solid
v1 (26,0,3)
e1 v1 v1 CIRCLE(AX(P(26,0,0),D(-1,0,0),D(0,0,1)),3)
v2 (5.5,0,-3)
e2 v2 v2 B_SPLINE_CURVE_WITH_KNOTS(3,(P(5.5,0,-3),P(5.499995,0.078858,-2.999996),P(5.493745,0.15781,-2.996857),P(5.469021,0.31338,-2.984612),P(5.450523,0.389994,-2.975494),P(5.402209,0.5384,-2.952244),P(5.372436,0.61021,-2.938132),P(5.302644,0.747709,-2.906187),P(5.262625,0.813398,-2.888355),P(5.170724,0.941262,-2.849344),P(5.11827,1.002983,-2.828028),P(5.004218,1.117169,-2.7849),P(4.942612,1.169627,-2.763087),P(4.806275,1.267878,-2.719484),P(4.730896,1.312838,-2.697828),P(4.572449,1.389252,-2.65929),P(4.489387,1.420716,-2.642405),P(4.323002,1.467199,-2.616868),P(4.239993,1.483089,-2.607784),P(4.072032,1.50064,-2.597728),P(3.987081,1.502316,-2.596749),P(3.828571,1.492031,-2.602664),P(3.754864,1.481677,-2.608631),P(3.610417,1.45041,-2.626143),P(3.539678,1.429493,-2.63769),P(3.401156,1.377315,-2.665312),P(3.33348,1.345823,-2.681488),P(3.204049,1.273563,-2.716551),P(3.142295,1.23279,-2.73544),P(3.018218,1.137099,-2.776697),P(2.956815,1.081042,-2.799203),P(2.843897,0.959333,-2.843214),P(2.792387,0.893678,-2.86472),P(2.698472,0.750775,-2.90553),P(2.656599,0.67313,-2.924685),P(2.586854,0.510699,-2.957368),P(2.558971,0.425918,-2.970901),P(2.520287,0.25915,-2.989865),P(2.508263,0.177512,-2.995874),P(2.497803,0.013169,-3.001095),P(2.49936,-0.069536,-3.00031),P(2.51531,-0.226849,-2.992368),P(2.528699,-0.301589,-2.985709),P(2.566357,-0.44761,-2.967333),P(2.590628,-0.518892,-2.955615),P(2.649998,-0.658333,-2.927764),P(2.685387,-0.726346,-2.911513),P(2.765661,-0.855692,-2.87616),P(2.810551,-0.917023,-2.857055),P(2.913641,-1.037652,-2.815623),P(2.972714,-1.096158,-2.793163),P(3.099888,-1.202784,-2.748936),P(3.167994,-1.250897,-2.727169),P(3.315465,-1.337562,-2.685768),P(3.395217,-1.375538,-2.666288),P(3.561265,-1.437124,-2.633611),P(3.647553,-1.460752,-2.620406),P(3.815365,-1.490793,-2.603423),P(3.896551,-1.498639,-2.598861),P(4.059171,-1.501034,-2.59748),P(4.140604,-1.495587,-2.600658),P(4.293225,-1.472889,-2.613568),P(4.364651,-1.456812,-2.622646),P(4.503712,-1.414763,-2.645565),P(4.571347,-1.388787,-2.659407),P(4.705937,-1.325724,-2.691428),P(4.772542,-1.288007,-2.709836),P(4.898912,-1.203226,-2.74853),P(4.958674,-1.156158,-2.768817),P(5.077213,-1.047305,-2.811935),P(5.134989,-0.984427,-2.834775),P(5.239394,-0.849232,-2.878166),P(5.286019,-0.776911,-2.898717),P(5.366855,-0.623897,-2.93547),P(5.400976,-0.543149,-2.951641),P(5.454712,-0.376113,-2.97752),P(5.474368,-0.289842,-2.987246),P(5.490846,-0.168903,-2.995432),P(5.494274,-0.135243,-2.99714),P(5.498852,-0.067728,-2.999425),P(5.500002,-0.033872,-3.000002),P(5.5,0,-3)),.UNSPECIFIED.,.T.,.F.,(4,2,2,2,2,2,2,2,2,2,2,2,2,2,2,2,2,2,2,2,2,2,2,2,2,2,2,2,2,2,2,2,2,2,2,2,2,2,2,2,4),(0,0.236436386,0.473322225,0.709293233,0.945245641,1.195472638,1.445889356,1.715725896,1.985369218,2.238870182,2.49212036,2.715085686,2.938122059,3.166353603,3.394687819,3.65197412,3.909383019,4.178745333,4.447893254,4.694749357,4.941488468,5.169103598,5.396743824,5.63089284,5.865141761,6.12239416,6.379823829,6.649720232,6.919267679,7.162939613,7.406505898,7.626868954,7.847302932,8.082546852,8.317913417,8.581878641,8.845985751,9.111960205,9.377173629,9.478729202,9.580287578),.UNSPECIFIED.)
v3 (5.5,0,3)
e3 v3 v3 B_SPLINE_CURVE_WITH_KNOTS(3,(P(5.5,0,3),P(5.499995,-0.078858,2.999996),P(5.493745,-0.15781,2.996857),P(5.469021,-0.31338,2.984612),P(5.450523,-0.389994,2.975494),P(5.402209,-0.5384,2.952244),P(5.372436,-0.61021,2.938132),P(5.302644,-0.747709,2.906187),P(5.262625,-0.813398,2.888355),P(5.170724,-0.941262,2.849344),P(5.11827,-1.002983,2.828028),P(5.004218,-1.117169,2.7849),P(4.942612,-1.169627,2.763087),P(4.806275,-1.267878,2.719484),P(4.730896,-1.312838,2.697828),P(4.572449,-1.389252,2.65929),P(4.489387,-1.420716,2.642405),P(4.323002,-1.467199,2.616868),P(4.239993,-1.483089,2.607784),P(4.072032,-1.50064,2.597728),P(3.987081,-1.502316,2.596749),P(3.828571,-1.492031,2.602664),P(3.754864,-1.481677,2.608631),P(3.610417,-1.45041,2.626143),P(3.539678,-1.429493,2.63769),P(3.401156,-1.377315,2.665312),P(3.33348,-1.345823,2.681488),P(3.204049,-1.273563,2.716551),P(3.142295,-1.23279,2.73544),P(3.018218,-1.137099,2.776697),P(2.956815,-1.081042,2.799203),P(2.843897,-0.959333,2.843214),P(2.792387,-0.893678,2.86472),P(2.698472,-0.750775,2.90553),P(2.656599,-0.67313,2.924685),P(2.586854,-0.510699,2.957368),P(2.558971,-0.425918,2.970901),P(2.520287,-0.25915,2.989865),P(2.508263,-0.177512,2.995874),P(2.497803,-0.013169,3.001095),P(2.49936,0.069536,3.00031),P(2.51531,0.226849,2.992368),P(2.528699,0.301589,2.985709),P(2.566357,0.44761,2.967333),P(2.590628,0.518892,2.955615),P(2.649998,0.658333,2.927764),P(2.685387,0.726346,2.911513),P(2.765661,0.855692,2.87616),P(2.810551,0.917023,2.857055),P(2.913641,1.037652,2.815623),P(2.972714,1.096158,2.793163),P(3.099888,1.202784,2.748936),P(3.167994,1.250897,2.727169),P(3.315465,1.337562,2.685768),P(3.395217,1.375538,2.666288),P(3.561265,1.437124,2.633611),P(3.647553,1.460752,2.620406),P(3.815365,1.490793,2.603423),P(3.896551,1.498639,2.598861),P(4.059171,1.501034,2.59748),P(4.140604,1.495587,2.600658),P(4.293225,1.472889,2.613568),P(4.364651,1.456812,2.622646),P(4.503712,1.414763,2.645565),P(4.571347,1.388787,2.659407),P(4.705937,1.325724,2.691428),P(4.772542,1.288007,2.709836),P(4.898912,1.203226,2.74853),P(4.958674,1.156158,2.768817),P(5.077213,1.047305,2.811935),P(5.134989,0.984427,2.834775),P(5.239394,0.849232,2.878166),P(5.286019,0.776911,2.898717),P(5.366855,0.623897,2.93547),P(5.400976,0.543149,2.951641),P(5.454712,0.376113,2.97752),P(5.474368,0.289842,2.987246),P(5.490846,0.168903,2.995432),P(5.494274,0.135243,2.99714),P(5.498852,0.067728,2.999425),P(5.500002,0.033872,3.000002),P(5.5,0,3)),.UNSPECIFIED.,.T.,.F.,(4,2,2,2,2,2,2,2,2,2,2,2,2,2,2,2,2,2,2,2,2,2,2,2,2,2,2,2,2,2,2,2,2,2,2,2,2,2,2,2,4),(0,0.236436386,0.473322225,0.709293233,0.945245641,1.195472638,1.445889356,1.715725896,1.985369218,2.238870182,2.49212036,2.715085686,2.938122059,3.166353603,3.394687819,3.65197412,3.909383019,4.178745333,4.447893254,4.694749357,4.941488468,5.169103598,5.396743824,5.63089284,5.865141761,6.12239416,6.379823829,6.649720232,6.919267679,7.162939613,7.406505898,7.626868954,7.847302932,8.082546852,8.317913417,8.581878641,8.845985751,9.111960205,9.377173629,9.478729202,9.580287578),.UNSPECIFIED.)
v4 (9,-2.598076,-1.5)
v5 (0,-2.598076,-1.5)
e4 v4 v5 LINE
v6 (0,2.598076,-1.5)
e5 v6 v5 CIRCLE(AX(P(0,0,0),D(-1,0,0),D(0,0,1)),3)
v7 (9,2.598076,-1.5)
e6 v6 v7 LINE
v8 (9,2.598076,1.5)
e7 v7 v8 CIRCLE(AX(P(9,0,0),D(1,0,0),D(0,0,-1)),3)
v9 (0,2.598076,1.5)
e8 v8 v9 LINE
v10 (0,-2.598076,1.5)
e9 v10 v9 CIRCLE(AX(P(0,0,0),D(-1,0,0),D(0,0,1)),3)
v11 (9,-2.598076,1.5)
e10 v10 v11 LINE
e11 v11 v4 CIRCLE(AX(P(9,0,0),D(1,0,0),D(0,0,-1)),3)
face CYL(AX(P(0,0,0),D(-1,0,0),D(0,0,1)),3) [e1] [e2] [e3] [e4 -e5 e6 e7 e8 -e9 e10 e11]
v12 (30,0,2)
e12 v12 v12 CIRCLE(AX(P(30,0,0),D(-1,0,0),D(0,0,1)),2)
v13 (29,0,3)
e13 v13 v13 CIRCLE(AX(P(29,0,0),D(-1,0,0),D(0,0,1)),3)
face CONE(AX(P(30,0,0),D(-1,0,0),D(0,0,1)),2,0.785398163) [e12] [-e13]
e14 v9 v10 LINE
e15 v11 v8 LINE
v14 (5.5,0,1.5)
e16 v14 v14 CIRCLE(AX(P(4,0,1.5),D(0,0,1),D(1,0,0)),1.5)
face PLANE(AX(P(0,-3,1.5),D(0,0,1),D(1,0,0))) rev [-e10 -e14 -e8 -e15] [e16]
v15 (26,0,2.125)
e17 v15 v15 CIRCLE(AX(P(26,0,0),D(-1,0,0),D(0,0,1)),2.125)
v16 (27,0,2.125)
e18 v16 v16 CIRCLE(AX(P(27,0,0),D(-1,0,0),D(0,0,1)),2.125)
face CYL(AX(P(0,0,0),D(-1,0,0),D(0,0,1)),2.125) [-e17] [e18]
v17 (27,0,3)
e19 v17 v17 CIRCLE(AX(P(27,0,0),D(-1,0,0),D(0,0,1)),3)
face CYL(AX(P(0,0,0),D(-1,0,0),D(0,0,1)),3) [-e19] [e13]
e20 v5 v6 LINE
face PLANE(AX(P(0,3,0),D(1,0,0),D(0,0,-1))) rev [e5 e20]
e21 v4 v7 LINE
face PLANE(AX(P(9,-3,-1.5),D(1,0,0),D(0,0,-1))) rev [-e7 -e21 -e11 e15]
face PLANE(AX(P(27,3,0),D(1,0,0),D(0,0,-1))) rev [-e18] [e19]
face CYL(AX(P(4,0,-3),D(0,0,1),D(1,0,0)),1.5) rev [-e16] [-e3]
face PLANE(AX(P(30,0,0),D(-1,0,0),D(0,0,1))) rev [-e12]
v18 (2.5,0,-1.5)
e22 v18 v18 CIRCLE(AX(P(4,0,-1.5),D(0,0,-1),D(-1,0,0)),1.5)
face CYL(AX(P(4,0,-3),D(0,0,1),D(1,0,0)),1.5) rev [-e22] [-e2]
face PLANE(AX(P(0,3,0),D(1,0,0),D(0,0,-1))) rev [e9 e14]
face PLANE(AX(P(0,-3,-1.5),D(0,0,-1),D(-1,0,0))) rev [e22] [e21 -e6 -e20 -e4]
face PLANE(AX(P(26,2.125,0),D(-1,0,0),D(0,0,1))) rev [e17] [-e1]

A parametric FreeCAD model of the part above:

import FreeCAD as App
import Part
import Sketcher

V = App.Vector

doc = App.newDocument("Part")
params = doc.addObject("Spreadsheet::Sheet", "Params")
for row, (alias, value) in enumerate([
    ("sketch1_width", "2 mm"),
    ("sketch1_width2", "1 mm"),
    ("sketch1_width3", "26 mm"),
    ("sketch1_width4", "30 mm"),
    ("sketch1_height", "3 mm"),
    ("revolution_angle", "360 deg"),
    ("sketch2_width", "9 mm"),
    ("sketch2_height", "3 mm"),
    ("sketch3_diameter", "3 mm"),
], start=1):
    params.set(f"A{row}", alias)
    params.set(f"B{row}", "=" + value)
    params.setAlias(f"B{row}", alias)

body = doc.addObject("PartDesign::Body", "Body")

sketch1 = body.newObject("Sketcher::SketchObject", "Sketch")
sketch1.AttachmentSupport = (doc.getObject("XY_Plane"), [""])
sketch1.MapMode = "FlatFace"
sketch1.addGeometry([
    Part.LineSegment(V(30, 0, 0), V(30, 2, 0)),
    Part.LineSegment(V(30, 2, 0), V(29, 3, 0)),
    Part.LineSegment(V(29, 3, 0), V(27, 3, 0)),
    Part.LineSegment(V(27, 3, 0), V(27, 2.125, 0)),
    Part.LineSegment(V(27, 2.125, 0), V(26, 2.125, 0)),
    Part.LineSegment(V(26, 2.125, 0), V(26, 3, 0)),
    Part.LineSegment(V(26, 3, 0), V(0, 3, 0)),
    Part.LineSegment(V(0, 3, 0), V(0, 0, 0)),
    Part.LineSegment(V(0, 0, 0), V(30, 0, 0)),
], False)
sketch1.addConstraint([
    Sketcher.Constraint("Coincident", 0, 2, 1, 1),
    Sketcher.Constraint("Coincident", 1, 2, 2, 1),
    Sketcher.Constraint("Coincident", 2, 2, 3, 1),
    Sketcher.Constraint("Coincident", 3, 2, 4, 1),
    Sketcher.Constraint("Coincident", 4, 2, 5, 1),
    Sketcher.Constraint("Coincident", 5, 2, 6, 1),
    Sketcher.Constraint("Coincident", 6, 2, 7, 1),
    Sketcher.Constraint("Coincident", 7, 2, 8, 1),
    Sketcher.Constraint("Coincident", 8, 2, 0, 1),
    Sketcher.Constraint("Vertical", 0),
    Sketcher.Constraint("Horizontal", 2),
    Sketcher.Constraint("Vertical", 3),
    Sketcher.Constraint("Horizontal", 4),
    Sketcher.Constraint("Vertical", 5),
    Sketcher.Constraint("Horizontal", 6),
    Sketcher.Constraint("Vertical", 7),
    Sketcher.Constraint("Horizontal", 8),
    Sketcher.Constraint("Coincident", 7, 2, -1, 1),
    Sketcher.Constraint("Horizontal", 2, 2, 5, 2),
    Sketcher.Constraint("Equal", 2, 0),
    Sketcher.Constraint("DistanceX", 2, 2, 2, 1, 2.0),
    Sketcher.Constraint("DistanceX", 4, 2, 4, 1, 1.0),
    Sketcher.Constraint("DistanceX", 6, 2, 6, 1, 26.0),
    Sketcher.Constraint("DistanceX", 8, 1, 8, 2, 30.0),
    Sketcher.Constraint("DistanceY", 7, 2, 7, 1, 3.0),
    Sketcher.Constraint("DistanceY", 3, 2, 3, 1, 0.875),
])
sketch1.setExpression("Constraints[20]", "Params.sketch1_width")
sketch1.setExpression("Constraints[21]", "Params.sketch1_width2")
sketch1.setExpression("Constraints[22]", "Params.sketch1_width3")
sketch1.setExpression("Constraints[23]", "Params.sketch1_width4")
sketch1.setExpression("Constraints[24]", "Params.sketch1_height")
revolution = body.newObject("PartDesign::Revolution", "Revolution")
revolution.Profile = sketch1
revolution.ReferenceAxis = (sketch1, ["H_Axis"])
revolution.setExpression("Angle", "Params.revolution_angle")

sketch2 = body.newObject("Sketcher::SketchObject", "Sketch001")
sketch2.AttachmentSupport = (doc.getObject("XZ_Plane"), [""])
sketch2.MapMode = "FlatFace"
sketch2.addGeometry([
    Part.LineSegment(V(0, -1.5, 0), V(0, 1.5, 0)),
    Part.LineSegment(V(0, 1.5, 0), V(9, 1.5, 0)),
    Part.LineSegment(V(9, 1.5, 0), V(9, -1.5, 0)),
    Part.LineSegment(V(9, -1.5, 0), V(0, -1.5, 0)),
], False)
sketch2.addConstraint([
    Sketcher.Constraint("Coincident", 0, 2, 1, 1),
    Sketcher.Constraint("Coincident", 1, 2, 2, 1),
    Sketcher.Constraint("Coincident", 2, 2, 3, 1),
    Sketcher.Constraint("Coincident", 3, 2, 0, 1),
    Sketcher.Constraint("Vertical", 0),
    Sketcher.Constraint("Horizontal", 1),
    Sketcher.Constraint("Vertical", 2),
    Sketcher.Constraint("Horizontal", 3),
    Sketcher.Constraint("Symmetric", 0, 2, 3, 2, -1, 1),
    Sketcher.Constraint("DistanceX", 1, 1, 1, 2, 9.0),
    Sketcher.Constraint("DistanceY", 0, 1, 0, 2, 3.0),
])
sketch2.setExpression("Constraints[9]", "Params.sketch2_width")
sketch2.setExpression("Constraints[10]", "Params.sketch2_height")
pocket1 = body.newObject("PartDesign::Pocket", "Pocket")
pocket1.Profile = sketch2
pocket1.Type = "ThroughAll"
pocket1.Midplane = True

sketch3 = body.newObject("Sketcher::SketchObject", "Sketch002")
sketch3.AttachmentSupport = (doc.getObject("XY_Plane"), [""])
sketch3.MapMode = "FlatFace"
sketch3.addGeometry(Part.Circle(V(4, 0, 0), V(0, 0, 1), 1.5), False)
sketch3.addConstraint([
    Sketcher.Constraint("PointOnObject", 0, 3, -1),
    Sketcher.Constraint("Diameter", 0, 3.0),
    Sketcher.Constraint("DistanceX", -1, 1, 0, 3, 4.0),
])
sketch3.setExpression("Constraints[1]", "Params.sketch3_diameter")
pocket2 = body.newObject("PartDesign::Pocket", "Pocket001")
pocket2.Profile = sketch3
pocket2.Type = "ThroughAll"
pocket2.Midplane = True

doc.recompute()
